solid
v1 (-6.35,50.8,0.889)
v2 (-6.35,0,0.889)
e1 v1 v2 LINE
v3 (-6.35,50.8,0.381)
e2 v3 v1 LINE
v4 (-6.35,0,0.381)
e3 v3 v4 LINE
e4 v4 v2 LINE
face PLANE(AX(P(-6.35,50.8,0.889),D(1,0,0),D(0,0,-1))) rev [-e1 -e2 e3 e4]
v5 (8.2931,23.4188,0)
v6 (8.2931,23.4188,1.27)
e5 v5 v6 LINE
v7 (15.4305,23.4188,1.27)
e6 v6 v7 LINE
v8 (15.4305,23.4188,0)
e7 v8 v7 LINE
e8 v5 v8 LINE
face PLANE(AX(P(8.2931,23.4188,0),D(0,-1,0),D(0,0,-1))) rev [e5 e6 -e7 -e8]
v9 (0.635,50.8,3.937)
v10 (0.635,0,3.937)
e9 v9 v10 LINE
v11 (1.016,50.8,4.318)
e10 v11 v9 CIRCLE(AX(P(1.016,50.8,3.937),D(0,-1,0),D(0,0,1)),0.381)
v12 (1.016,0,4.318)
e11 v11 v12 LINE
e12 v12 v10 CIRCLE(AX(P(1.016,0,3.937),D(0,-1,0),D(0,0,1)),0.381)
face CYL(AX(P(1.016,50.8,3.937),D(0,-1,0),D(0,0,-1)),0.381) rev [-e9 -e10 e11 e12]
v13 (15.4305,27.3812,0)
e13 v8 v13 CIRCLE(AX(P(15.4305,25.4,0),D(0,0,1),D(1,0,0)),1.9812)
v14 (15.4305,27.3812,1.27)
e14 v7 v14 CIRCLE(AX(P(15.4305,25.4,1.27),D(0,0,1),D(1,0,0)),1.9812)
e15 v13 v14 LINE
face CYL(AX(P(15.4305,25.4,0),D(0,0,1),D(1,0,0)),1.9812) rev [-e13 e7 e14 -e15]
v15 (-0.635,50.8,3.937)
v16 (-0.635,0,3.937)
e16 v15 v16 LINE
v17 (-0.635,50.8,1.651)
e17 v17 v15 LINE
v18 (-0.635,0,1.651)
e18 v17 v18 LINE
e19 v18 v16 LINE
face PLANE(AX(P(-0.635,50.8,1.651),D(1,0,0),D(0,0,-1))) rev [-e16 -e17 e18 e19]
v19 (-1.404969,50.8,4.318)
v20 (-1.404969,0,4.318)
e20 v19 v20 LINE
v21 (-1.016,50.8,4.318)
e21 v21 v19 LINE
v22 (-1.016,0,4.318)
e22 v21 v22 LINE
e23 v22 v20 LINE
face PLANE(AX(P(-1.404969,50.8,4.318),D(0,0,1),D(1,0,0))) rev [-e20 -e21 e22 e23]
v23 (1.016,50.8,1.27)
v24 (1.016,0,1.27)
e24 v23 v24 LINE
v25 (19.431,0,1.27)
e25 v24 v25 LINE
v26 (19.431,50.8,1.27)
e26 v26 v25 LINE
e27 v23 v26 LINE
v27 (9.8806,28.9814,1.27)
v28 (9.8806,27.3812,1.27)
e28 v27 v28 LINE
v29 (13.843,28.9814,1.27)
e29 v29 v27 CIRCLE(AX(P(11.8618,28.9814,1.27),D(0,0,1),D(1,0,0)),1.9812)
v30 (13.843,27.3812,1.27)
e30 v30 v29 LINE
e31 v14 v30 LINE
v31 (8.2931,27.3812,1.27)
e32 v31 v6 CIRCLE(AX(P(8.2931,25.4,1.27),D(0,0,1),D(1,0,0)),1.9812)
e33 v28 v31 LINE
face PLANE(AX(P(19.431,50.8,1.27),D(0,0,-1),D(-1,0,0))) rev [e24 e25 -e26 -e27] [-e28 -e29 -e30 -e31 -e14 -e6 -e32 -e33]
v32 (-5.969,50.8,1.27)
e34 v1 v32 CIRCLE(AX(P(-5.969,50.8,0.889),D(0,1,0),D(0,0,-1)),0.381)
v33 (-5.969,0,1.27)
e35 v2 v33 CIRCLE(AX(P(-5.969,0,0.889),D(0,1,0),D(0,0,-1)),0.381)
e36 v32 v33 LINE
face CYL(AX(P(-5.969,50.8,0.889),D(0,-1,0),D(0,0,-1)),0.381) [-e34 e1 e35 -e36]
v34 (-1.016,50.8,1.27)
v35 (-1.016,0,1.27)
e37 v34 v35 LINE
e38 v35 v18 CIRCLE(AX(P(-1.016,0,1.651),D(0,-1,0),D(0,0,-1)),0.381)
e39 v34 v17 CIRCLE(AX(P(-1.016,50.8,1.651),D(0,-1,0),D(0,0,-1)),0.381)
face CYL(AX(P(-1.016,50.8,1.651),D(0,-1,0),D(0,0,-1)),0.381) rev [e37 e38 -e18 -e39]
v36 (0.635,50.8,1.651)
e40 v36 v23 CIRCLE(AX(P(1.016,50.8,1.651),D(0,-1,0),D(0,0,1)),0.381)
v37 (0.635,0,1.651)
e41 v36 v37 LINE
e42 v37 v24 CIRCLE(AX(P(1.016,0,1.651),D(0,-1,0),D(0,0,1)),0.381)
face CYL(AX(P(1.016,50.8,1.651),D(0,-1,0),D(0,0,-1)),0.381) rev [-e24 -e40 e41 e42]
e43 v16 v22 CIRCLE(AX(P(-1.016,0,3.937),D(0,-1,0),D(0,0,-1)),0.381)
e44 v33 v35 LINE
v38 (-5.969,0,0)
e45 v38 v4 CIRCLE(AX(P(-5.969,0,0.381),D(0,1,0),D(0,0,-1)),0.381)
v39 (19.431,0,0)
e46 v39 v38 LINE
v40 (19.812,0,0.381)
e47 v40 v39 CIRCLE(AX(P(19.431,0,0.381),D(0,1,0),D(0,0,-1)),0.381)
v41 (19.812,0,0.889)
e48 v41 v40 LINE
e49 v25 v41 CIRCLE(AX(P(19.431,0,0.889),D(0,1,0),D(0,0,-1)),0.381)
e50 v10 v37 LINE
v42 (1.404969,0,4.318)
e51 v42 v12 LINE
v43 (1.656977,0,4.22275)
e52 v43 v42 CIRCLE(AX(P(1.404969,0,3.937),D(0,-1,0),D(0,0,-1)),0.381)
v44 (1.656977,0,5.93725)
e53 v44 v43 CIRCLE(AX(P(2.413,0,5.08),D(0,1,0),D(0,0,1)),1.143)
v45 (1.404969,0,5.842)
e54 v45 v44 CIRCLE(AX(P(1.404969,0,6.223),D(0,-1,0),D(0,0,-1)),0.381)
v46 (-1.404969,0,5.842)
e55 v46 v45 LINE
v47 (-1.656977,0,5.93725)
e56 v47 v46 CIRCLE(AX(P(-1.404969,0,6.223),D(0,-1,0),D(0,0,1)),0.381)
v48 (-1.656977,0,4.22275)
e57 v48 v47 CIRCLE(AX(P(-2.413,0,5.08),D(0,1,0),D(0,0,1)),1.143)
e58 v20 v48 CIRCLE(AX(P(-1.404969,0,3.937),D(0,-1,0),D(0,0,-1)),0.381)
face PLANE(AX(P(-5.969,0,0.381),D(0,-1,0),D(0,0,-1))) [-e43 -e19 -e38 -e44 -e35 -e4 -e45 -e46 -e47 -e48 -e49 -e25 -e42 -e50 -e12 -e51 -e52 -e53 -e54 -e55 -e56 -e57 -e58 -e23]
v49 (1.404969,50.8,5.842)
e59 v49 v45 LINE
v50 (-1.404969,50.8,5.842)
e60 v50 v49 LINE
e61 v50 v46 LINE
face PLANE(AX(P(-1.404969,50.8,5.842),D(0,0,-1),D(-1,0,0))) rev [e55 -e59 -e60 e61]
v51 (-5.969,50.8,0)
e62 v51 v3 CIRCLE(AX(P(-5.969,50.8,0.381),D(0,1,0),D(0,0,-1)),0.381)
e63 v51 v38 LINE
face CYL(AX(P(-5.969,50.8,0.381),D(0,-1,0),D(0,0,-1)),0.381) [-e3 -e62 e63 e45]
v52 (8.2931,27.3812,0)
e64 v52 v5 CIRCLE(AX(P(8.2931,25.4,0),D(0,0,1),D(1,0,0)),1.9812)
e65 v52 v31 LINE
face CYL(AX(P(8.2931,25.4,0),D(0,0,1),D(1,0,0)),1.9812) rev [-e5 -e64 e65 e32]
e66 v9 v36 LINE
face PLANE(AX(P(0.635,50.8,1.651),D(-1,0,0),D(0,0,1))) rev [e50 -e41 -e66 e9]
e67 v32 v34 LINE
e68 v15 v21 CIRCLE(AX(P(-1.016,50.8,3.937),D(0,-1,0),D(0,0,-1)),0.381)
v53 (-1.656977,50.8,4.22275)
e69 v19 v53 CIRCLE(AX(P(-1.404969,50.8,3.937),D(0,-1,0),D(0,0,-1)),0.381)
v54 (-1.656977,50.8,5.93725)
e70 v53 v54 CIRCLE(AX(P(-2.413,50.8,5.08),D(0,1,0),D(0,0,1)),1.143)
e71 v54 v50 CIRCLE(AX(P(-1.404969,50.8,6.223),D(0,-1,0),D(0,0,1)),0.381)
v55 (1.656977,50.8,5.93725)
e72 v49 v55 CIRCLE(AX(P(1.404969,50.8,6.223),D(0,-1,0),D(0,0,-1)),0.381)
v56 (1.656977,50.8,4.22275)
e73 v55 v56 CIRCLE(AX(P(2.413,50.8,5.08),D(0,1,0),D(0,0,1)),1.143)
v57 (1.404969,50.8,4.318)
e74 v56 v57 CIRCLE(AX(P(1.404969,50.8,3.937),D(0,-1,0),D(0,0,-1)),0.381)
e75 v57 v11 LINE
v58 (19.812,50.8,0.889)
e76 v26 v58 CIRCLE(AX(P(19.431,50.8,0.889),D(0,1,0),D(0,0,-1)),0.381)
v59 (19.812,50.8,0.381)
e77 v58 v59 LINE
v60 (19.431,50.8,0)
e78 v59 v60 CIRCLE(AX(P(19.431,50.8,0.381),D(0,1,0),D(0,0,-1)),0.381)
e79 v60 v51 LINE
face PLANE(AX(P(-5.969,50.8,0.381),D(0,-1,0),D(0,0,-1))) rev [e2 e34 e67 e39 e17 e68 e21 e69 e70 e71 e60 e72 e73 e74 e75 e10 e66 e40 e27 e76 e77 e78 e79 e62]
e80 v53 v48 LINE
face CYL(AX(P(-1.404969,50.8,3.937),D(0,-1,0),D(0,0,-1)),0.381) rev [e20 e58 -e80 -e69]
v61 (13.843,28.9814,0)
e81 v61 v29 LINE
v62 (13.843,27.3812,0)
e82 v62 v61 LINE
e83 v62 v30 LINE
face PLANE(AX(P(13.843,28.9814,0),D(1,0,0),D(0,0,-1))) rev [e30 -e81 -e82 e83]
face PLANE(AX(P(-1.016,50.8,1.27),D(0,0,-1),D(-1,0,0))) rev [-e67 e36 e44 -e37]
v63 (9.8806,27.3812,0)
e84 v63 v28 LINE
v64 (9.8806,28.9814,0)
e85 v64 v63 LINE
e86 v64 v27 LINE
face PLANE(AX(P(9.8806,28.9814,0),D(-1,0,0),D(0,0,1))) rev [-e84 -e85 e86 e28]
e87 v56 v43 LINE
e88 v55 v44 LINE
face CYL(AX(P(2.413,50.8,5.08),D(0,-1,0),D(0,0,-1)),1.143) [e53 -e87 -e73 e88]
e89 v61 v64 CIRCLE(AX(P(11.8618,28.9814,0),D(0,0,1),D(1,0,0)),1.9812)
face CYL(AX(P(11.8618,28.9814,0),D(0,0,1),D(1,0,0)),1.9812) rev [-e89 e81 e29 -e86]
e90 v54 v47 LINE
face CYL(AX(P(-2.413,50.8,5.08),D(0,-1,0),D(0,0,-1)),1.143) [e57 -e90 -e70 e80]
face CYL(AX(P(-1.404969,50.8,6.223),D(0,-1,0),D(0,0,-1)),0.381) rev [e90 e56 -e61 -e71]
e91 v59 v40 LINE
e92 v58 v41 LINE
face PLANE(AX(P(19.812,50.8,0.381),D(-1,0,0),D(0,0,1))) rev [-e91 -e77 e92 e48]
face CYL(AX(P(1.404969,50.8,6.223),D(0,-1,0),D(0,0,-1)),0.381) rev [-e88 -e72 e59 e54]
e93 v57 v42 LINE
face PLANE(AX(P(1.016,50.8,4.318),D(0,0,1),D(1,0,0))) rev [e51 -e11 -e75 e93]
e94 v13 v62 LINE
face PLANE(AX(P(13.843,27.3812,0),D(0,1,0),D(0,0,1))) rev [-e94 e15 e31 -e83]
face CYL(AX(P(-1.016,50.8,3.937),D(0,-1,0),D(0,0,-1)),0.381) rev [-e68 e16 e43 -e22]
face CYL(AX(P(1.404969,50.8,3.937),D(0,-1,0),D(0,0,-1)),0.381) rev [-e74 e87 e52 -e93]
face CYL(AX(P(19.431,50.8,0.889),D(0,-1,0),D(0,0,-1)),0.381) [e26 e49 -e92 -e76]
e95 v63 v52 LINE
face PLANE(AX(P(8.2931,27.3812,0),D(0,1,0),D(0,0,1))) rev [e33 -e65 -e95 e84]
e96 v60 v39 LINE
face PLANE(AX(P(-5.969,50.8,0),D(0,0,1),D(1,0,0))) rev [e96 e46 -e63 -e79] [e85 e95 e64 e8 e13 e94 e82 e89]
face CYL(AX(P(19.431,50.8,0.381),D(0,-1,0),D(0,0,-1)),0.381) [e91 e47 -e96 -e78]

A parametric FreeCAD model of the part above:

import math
import FreeCAD as App
import Part
import Sketcher
Q = App.Units.Quantity

doc = App.newDocument("Part")
body = doc.addObject("PartDesign::Body", "Body")

# Sketch on XZ plane
sketch1 = body.newObject("Sketcher::SketchObject", "Sketch")
sketch1.AttachmentSupport = (doc.getObject("XZ_Plane"), [""])
sketch1.MapMode = "FlatFace"
sketch1.addGeometry([
    Part.LineSegment(App.Vector(19.43, 0, 0), App.Vector(-5.97, 0, 0)),  # 0
    Part.ArcOfCircle(Part.Circle(App.Vector(-5.97, 0.38, 0), App.Vector(0, 0, 1), 0.38), math.radians(180), math.radians(270)),  # 1
    Part.LineSegment(App.Vector(-6.35, 0.38, 0), App.Vector(-6.35, 0.89, 0)),  # 2
    Part.ArcOfCircle(Part.Circle(App.Vector(-5.97, 0.89, 0), App.Vector(0, 0, 1), 0.38), math.radians(90), math.radians(180)),  # 3
    Part.LineSegment(App.Vector(-5.97, 1.27, 0), App.Vector(-1.02, 1.27, 0)),  # 4
    Part.ArcOfCircle(Part.Circle(App.Vector(-1.02, 1.65, 0), App.Vector(0, 0, 1), 0.38), math.radians(-90), math.radians(0)),  # 5
    Part.LineSegment(App.Vector(-0.64, 1.65, 0), App.Vector(-0.64, 3.94, 0)),  # 6
    Part.ArcOfCircle(Part.Circle(App.Vector(-1.02, 3.94, 0), App.Vector(0, 0, 1), 0.38), math.radians(0), math.radians(90)),  # 7
    Part.LineSegment(App.Vector(-1.02, 4.32, 0), App.Vector(-1.4, 4.32, 0)),  # 8
    Part.ArcOfCircle(Part.Circle(App.Vector(-1.4, 3.94, 0), App.Vector(0, 0, 1), 0.38), math.radians(90), math.radians(131)),  # 9
    Part.ArcOfCircle(Part.Circle(App.Vector(-2.41, 5.08, 0), App.Vector(0, 0, 1), 1.14), math.radians(49), math.radians(311)),  # 10
    Part.ArcOfCircle(Part.Circle(App.Vector(-1.4, 6.22, 0), App.Vector(0, 0, 1), 0.38), math.radians(-131), math.radians(-90)),  # 11
    Part.LineSegment(App.Vector(-1.4, 5.84, 0), App.Vector(1.4, 5.84, 0)),  # 12
    Part.ArcOfCircle(Part.Circle(App.Vector(1.4, 6.22, 0), App.Vector(0, 0, 1), 0.38), math.radians(-90), math.radians(-49)),  # 13
    Part.ArcOfCircle(Part.Circle(App.Vector(2.41, 5.08, 0), App.Vector(0, 0, 1), 1.14), math.radians(-131), math.radians(131)),  # 14
    Part.ArcOfCircle(Part.Circle(App.Vector(1.4, 3.94, 0), App.Vector(0, 0, 1), 0.38), math.radians(49), math.radians(90)),  # 15
    Part.LineSegment(App.Vector(1.4, 4.32, 0), App.Vector(1.02, 4.32, 0)),  # 16
    Part.ArcOfCircle(Part.Circle(App.Vector(1.02, 3.94, 0), App.Vector(0, 0, 1), 0.38), math.radians(90), math.radians(180)),  # 17
    Part.LineSegment(App.Vector(0.64, 3.94, 0), App.Vector(0.64, 1.65, 0)),  # 18
    Part.ArcOfCircle(Part.Circle(App.Vector(1.02, 1.65, 0), App.Vector(0, 0, 1), 0.38), math.radians(180), math.radians(270)),  # 19
    Part.LineSegment(App.Vector(1.02, 1.27, 0), App.Vector(19.43, 1.27, 0)),  # 20
    Part.ArcOfCircle(Part.Circle(App.Vector(19.43, 0.89, 0), App.Vector(0, 0, 1), 0.38), math.radians(0), math.radians(90)),  # 21
    Part.LineSegment(App.Vector(19.81, 0.89, 0), App.Vector(19.81, 0.38, 0)),  # 22
    Part.ArcOfCircle(Part.Circle(App.Vector(19.43, 0.38, 0), App.Vector(0, 0, 1), 0.38), math.radians(-90), math.radians(0)),  # 23
], False)
sketch1.addConstraint([
    Sketcher.Constraint("Tangent", 0, 2, 1, 2),
    Sketcher.Constraint("Tangent", 1, 1, 2, 1),
    Sketcher.Constraint("Tangent", 2, 2, 3, 2),
    Sketcher.Constraint("Tangent", 3, 1, 4, 1),
    Sketcher.Constraint("Tangent", 4, 2, 5, 1),
    Sketcher.Constraint("Tangent", 5, 2, 6, 1),
    Sketcher.Constraint("Tangent", 6, 2, 7, 1),
    Sketcher.Constraint("Tangent", 7, 2, 8, 1),
    Sketcher.Constraint("Tangent", 8, 2, 9, 1),
    Sketcher.Constraint("Tangent", 9, 2, 10, 2),
    Sketcher.Constraint("Tangent", 10, 1, 11, 1),
    Sketcher.Constraint("Tangent", 11, 2, 12, 1),
    Sketcher.Constraint("Tangent", 12, 2, 13, 1),
    Sketcher.Constraint("Tangent", 13, 2, 14, 2),
    Sketcher.Constraint("Tangent", 14, 1, 15, 1),
    Sketcher.Constraint("Tangent", 15, 2, 16, 1),
    Sketcher.Constraint("Tangent", 16, 2, 17, 1),
    Sketcher.Constraint("Tangent", 17, 2, 18, 1),
    Sketcher.Constraint("Tangent", 18, 2, 19, 1),
    Sketcher.Constraint("Tangent", 19, 2, 20, 1),
    Sketcher.Constraint("Tangent", 20, 2, 21, 2),
    Sketcher.Constraint("Tangent", 21, 1, 22, 1),
    Sketcher.Constraint("Tangent", 22, 2, 23, 2),
    Sketcher.Constraint("Tangent", 23, 1, 0, 1),
    Sketcher.Constraint("Horizontal", 0),
    Sketcher.Constraint("Vertical", 2),
    Sketcher.Constraint("Horizontal", 4),
    Sketcher.Constraint("Vertical", 6),
    Sketcher.Constraint("Horizontal", 8),
    Sketcher.Constraint("Horizontal", 12),
    Sketcher.Constraint("Horizontal", 16),
    Sketcher.Constraint("Vertical", 18),
    Sketcher.Constraint("Horizontal", 20),
    Sketcher.Constraint("Vertical", 22),
    Sketcher.Constraint("Equal", 1, 3),
    Sketcher.Constraint("Equal", 3, 5),
    Sketcher.Constraint("Equal", 5, 7),
    Sketcher.Constraint("Equal", 7, 9),
    Sketcher.Constraint("Equal", 9, 11),
    Sketcher.Constraint("Equal", 11, 13),
    Sketcher.Constraint("Equal", 10, 14),
    Sketcher.Constraint("Equal", 13, 15),
    Sketcher.Constraint("Equal", 15, 17),
    Sketcher.Constraint("Equal", 17, 19),
    Sketcher.Constraint("Equal", 19, 21),
    Sketcher.Constraint("Equal", 21, 23),
    Sketcher.Constraint("Symmetric", 10, 3, 14, 3, -2),
    Sketcher.Constraint("Symmetric", 7, 3, 17, 3, -2),
    Sketcher.Constraint("PointOnObject", 0, 2, -1),
    Sketcher.Constraint("Horizontal", 5, 3, 19, 3),
    Sketcher.Constraint("Vertical", 9, 3, 11, 3),
    Sketcher.Constraint("DistanceX", 0, 2, 0, 1, Q("1 in")),
    Sketcher.Constraint("Radius", 1, Q("0.015 in")),
    Sketcher.Constraint("Radius", 10, Q("0.045 in")),
    Sketcher.Constraint("DistanceY", 2, 1, 2, 2, Q("0.02 in")),
    Sketcher.Constraint("DistanceY", 6, 1, 6, 2, Q("0.09 in")),
    Sketcher.Constraint("DistanceY", -1, 1, 10, 3, Q("0.2 in")),
    Sketcher.Constraint("DistanceX", 4, 1, 4, 2, Q("0.195 in")),
    Sketcher.Constraint("DistanceX", 20, 1, 20, 2, Q("0.725 in")),
    Sketcher.Constraint("DistanceX", 3, 3, 10, 3, Q("0.14 in")),
])
pad1 = body.newObject("PartDesign::Pad", "Pad")
pad1.Profile = sketch1
pad1.Length = Q("2 in")
pad1.Reversed = True

# Sketch on XY plane
sketch2 = body.newObject("Sketcher::SketchObject", "Sketch001")
sketch2.AttachmentSupport = (doc.getObject("XY_Plane"), [""])
sketch2.MapMode = "FlatFace"
sketch2.AttachmentOffset = App.Placement(App.Vector(0, 0, 0.05 * 25.4), App.Rotation())
sketch2.addGeometry([
    Part.LineSegment(App.Vector(9.9, 27.4, 0), App.Vector(8.3, 27.4, 0)),  # 0
    Part.ArcOfCircle(Part.Circle(App.Vector(8.3, 25.4, 0), App.Vector(0, 0, 1), 2), math.radians(90), math.radians(270)),  # 1
    Part.LineSegment(App.Vector(8.3, 23.4, 0), App.Vector(15.4, 23.4, 0)),  # 2
    Part.ArcOfCircle(Part.Circle(App.Vector(15.4, 25.4, 0), App.Vector(0, 0, 1), 2), math.radians(-90), math.radians(90)),  # 3
    Part.LineSegment(App.Vector(15.4, 27.4, 0), App.Vector(13.8, 27.4, 0)),  # 4
    Part.LineSegment(App.Vector(13.8, 27.4, 0), App.Vector(13.8, 29, 0)),  # 5
    Part.ArcOfCircle(Part.Circle(App.Vector(11.9, 29, 0), App.Vector(0, 0, 1), 2), math.radians(0), math.radians(180)),  # 6
    Part.LineSegment(App.Vector(9.9, 29, 0), App.Vector(9.9, 27.4, 0)),  # 7
], False)
sketch2.addConstraint([
    Sketcher.Constraint("Tangent", 0, 2, 1, 1),
    Sketcher.Constraint("Tangent", 1, 2, 2, 1),
    Sketcher.Constraint("Tangent", 2, 2, 3, 1),
    Sketcher.Constraint("Tangent", 3, 2, 4, 1),
    Sketcher.Constraint("Coincident", 4, 2, 5, 1),
    Sketcher.Constraint("Tangent", 5, 2, 6, 1),
    Sketcher.Constraint("Tangent", 6, 2, 7, 1),
    Sketcher.Constraint("Coincident", 7, 2, 0, 1),
    Sketcher.Constraint("Horizontal", 0),
    Sketcher.Constraint("Horizontal", 2),
    Sketcher.Constraint("Horizontal", 4),
    Sketcher.Constraint("Vertical", 5),
    Sketcher.Constraint("Vertical", 7),
    Sketcher.Constraint("Equal", 1, 3),
    Sketcher.Constraint("Equal", 3, 6),
    Sketcher.Constraint("Equal", 0, 4),
    Sketcher.Constraint("DistanceY", -1, 1, 1, 3, Q("1 in")),
    Sketcher.Constraint("Radius", 1, Q("0.078 in")),
    Sketcher.Constraint("DistanceX", 0, 2, 0, 1, Q("0.0625 in")),
    Sketcher.Constraint("DistanceY", 5, 1, 5, 2, Q("0.063 in")),
    Sketcher.Constraint("DistanceX", -1, 1, 6, 3, Q("0.467 in")),
])
pocket1 = body.newObject("PartDesign::Pocket", "Pocket")
pocket1.Profile = sketch2
pocket1.Type = "ThroughAll"

doc.recompute()
